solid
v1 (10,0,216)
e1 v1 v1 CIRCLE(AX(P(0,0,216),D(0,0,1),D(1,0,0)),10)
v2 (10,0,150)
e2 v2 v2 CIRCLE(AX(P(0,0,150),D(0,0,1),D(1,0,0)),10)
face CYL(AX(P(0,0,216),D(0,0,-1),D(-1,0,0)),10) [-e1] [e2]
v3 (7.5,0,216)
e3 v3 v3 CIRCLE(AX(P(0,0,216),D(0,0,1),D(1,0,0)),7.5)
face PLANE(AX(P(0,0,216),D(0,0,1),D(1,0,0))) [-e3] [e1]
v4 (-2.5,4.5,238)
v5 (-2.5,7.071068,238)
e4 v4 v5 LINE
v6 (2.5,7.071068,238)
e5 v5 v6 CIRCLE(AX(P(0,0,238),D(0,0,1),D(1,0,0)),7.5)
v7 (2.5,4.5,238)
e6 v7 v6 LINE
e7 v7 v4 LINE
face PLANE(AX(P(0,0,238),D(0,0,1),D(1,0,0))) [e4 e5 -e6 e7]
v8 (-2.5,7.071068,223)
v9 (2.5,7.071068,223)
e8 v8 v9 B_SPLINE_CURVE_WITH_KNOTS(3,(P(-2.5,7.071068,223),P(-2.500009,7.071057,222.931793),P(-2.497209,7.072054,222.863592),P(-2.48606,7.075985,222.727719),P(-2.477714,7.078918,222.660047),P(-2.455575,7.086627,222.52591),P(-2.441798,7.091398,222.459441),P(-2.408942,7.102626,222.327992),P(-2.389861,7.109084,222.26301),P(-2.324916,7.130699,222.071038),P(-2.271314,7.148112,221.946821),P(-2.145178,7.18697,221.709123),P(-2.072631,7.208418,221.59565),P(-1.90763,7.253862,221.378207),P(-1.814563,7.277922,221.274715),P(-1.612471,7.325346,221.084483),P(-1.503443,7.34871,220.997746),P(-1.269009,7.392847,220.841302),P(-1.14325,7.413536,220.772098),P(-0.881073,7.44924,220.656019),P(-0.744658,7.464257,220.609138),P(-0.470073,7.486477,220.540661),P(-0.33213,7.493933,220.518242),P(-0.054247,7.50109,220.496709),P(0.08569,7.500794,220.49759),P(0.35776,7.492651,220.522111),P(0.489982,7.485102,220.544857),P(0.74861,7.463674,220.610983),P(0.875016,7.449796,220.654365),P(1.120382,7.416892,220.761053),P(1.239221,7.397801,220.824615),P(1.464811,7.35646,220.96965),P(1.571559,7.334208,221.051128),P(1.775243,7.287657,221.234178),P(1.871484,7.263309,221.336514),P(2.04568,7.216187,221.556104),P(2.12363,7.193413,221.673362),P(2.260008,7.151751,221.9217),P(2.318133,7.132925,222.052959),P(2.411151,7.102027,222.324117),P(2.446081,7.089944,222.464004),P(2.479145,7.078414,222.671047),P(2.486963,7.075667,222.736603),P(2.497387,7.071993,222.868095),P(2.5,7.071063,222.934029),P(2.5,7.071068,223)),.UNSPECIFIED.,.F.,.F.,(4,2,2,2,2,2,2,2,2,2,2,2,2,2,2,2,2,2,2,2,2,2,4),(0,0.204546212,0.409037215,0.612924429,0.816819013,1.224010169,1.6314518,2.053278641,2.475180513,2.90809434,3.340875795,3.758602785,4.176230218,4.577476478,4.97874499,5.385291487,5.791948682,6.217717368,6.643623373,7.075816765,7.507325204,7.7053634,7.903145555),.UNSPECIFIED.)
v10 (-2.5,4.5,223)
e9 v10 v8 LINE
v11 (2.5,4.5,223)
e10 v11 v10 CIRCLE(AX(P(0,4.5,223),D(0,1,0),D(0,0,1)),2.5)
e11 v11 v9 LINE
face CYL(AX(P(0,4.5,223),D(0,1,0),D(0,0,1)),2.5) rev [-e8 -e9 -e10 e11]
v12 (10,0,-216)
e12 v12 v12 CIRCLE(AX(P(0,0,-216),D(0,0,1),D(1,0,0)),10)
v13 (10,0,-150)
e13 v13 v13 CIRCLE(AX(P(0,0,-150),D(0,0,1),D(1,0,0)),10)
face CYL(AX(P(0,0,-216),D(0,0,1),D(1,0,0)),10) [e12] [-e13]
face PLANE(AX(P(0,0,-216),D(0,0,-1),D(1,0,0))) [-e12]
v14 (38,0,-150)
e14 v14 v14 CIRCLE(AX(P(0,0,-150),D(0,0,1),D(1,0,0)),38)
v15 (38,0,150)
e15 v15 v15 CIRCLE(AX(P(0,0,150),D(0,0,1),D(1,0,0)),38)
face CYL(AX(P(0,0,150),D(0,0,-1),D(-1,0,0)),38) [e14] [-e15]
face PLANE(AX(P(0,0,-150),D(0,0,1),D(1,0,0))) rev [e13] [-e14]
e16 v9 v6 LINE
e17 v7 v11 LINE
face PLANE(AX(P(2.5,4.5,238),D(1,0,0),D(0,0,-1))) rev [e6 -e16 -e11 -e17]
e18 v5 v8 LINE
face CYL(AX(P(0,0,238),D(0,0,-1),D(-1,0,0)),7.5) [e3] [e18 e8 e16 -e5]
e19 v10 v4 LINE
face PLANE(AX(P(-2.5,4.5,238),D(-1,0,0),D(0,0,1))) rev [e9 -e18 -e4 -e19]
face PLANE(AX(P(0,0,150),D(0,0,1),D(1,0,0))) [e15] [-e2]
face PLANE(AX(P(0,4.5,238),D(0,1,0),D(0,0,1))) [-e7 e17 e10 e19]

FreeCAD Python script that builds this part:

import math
import FreeCAD as App
import Part
import Sketcher

V = App.Vector
Q = App.Units.Quantity

doc = App.newDocument("Part")
body = doc.addObject("PartDesign::Body", "Body")

# Sketch on XY plane
sketch1 = body.newObject("Sketcher::SketchObject", "Sketch")
sketch1.AttachmentSupport = (doc.getObject("XY_Plane"), [""])
sketch1.MapMode = "FlatFace"
sketch1.addGeometry(Part.Circle(V(0, 0, 0), V(0, 0, 1), 38), False)
sketch1.addConstraint([
    Sketcher.Constraint("Coincident", 0, 3, -1, 1),
    Sketcher.Constraint("Diameter", 0, Q("76 mm")),
])
pad1 = body.newObject("PartDesign::Pad", "Pad")
pad1.Profile = sketch1
pad1.Length = 300
pad1.Midplane = True

# Sketch on XY plane
sketch2 = body.newObject("Sketcher::SketchObject", "Sketch001")
sketch2.AttachmentSupport = (doc.getObject("XY_Plane"), [""])
sketch2.MapMode = "FlatFace"
sketch2.AttachmentOffset = App.Placement(V(0, 0, 150), App.Rotation())
sketch2.addGeometry(Part.Circle(V(0, 0, 0), V(0, 0, 1), 10), False)
sketch2.addConstraint([
    Sketcher.Constraint("Coincident", 0, 3, -1, 1),
    Sketcher.Constraint("Diameter", 0, Q("20 mm")),
])
pad2 = body.newObject("PartDesign::Pad", "Pad001")
pad2.Profile = sketch2
pad2.Length = 66
doc.recompute()

mirrored = body.newObject("PartDesign::Mirrored", "Mirrored")
mirrored.Originals = [pad2]
mirrored.MirrorPlane = (doc.getObject("XY_Plane"), [""])
body.Tip = mirrored

# Sketch on XY plane
sketch3 = body.newObject("Sketcher::SketchObject", "Sketch002")
sketch3.AttachmentSupport = (doc.getObject("XY_Plane"), [""])
sketch3.MapMode = "FlatFace"
sketch3.AttachmentOffset = App.Placement(V(0, 0, 216), App.Rotation())
sketch3.addGeometry(Part.Circle(V(0, 0, 0), V(0, 0, 1), 8), False)
sketch3.addConstraint([
    Sketcher.Constraint("Coincident", 0, 3, -1, 1),
    Sketcher.Constraint("Diameter", 0, Q("15 mm")),
])
pad3 = body.newObject("PartDesign::Pad", "Pad002")
pad3.Profile = sketch3
pad3.Length = 22

# Sketch on XZ plane
sketch4 = body.newObject("Sketcher::SketchObject", "Sketch003")
sketch4.AttachmentSupport = (doc.getObject("XZ_Plane"), [""])
sketch4.MapMode = "FlatFace"
sketch4.AttachmentOffset = App.Placement(V(0, 0, -7.5), App.Rotation())
sketch4.addGeometry([
    Part.LineSegment(V(-2.5, 223, 0), V(-2.5, 238, 0)),
    Part.ArcOfCircle(Part.Circle(V(0, 238, 0), V(0, 0, 1), 2.5), math.radians(0), math.radians(180)),
    Part.LineSegment(V(2.5, 238, 0), V(2.5, 223, 0)),
    Part.ArcOfCircle(Part.Circle(V(0, 223, 0), V(0, 0, 1), 2.5), math.radians(180), math.radians(360)),
], False)
sketch4.addConstraint([
    Sketcher.Constraint("Tangent", 0, 2, 1, 2),
    Sketcher.Constraint("Tangent", 1, 1, 2, 1),
    Sketcher.Constraint("Tangent", 2, 2, 3, 2),
    Sketcher.Constraint("Tangent", 3, 1, 0, 1),
    Sketcher.Constraint("Vertical", 0),
    Sketcher.Constraint("Vertical", 2),
    Sketcher.Constraint("PointOnObject", 1, 3, -2),
    Sketcher.Constraint("Radius", 1, Q("2.5 mm")),
    Sketcher.Constraint("DistanceY", 0, 1, 0, 2, Q("15 mm")),
    Sketcher.Constraint("DistanceY", -1, 1, 1, 3, Q("238 mm")),
])
pocket1 = body.newObject("PartDesign::Pocket", "Pocket")
pocket1.Profile = sketch4
pocket1.Length = 3
pocket1.Reversed = True

doc.recompute()
